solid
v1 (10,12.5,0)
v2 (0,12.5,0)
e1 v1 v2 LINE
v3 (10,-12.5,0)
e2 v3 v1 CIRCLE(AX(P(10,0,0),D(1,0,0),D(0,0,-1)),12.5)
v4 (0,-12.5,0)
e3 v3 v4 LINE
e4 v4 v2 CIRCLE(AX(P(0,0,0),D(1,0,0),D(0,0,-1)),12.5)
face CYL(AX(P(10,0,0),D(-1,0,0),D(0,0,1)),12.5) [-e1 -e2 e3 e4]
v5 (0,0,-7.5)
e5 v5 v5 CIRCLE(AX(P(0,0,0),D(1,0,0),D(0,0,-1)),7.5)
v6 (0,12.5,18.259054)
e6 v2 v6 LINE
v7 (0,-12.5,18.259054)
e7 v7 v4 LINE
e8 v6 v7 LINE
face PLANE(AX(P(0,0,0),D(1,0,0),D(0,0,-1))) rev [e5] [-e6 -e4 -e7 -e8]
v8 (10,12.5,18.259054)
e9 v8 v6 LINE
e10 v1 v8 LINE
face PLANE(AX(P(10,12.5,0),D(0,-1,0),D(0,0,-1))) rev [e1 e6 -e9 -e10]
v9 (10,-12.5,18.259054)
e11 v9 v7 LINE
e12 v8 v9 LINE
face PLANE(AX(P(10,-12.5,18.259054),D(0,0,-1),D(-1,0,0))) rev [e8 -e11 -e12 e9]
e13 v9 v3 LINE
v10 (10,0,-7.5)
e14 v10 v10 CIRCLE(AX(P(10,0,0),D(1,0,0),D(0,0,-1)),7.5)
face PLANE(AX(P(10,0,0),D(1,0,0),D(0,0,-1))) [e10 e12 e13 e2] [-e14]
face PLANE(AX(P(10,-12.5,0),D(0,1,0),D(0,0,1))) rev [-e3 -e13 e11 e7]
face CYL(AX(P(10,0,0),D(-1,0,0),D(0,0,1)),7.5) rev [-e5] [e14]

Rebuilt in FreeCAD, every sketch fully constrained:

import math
import FreeCAD as App
import Part
import Sketcher

V = App.Vector

doc = App.newDocument("Part")
params = doc.addObject("Spreadsheet::Sheet", "Params")
for row, (alias, value) in enumerate([
    ("sketch1_diameter", "15 mm"),
    ("sketch1_radius", "12.5 mm"),
    ("pad1_length", "10 mm"),
], start=1):
    params.set(f"A{row}", alias)
    params.set(f"B{row}", "=" + value)
    params.setAlias(f"B{row}", alias)

body = doc.addObject("PartDesign::Body", "Body")

sketch1 = body.newObject("Sketcher::SketchObject", "Sketch")
sketch1.AttachmentSupport = (doc.getObject("YZ_Plane"), [""])
sketch1.MapMode = "FlatFace"
sketch1.addGeometry([
    Part.LineSegment(V(12, 0, 0), V(12, 18, 0)),
    Part.LineSegment(V(12, 18, 0), V(-12, 18, 0)),
    Part.LineSegment(V(-12, 18, 0), V(-12, 0, 0)),
    Part.ArcOfCircle(Part.Circle(V(0, 0, 0), V(0, 0, 1), 12), math.radians(180), math.radians(360)),
    Part.Circle(V(0, 0, 0), V(0, 0, 1), 8),
], False)
sketch1.addConstraint([
    Sketcher.Constraint("Coincident", 0, 2, 1, 1),
    Sketcher.Constraint("Coincident", 1, 2, 2, 1),
    Sketcher.Constraint("Tangent", 2, 2, 3, 1),
    Sketcher.Constraint("Tangent", 3, 2, 0, 1),
    Sketcher.Constraint("Vertical", 0),
    Sketcher.Constraint("Horizontal", 1),
    Sketcher.Constraint("Vertical", 2),
    Sketcher.Constraint("Coincident", 3, 3, -1, 1),
    Sketcher.Constraint("Coincident", 4, 3, -1, 1),
    Sketcher.Constraint("Diameter", 4, 15.0),
    Sketcher.Constraint("Radius", 3, 12.5),
    Sketcher.Constraint("DistanceY", 0, 1, 0, 2, 18.259054),
])
sketch1.setExpression("Constraints[9]", "Params.sketch1_diameter")
sketch1.setExpression("Constraints[10]", "Params.sketch1_radius")
pad1 = body.newObject("PartDesign::Pad", "Pad")
pad1.Profile = sketch1
pad1.setExpression("Length", "Params.pad1_length")

doc.recompute()
